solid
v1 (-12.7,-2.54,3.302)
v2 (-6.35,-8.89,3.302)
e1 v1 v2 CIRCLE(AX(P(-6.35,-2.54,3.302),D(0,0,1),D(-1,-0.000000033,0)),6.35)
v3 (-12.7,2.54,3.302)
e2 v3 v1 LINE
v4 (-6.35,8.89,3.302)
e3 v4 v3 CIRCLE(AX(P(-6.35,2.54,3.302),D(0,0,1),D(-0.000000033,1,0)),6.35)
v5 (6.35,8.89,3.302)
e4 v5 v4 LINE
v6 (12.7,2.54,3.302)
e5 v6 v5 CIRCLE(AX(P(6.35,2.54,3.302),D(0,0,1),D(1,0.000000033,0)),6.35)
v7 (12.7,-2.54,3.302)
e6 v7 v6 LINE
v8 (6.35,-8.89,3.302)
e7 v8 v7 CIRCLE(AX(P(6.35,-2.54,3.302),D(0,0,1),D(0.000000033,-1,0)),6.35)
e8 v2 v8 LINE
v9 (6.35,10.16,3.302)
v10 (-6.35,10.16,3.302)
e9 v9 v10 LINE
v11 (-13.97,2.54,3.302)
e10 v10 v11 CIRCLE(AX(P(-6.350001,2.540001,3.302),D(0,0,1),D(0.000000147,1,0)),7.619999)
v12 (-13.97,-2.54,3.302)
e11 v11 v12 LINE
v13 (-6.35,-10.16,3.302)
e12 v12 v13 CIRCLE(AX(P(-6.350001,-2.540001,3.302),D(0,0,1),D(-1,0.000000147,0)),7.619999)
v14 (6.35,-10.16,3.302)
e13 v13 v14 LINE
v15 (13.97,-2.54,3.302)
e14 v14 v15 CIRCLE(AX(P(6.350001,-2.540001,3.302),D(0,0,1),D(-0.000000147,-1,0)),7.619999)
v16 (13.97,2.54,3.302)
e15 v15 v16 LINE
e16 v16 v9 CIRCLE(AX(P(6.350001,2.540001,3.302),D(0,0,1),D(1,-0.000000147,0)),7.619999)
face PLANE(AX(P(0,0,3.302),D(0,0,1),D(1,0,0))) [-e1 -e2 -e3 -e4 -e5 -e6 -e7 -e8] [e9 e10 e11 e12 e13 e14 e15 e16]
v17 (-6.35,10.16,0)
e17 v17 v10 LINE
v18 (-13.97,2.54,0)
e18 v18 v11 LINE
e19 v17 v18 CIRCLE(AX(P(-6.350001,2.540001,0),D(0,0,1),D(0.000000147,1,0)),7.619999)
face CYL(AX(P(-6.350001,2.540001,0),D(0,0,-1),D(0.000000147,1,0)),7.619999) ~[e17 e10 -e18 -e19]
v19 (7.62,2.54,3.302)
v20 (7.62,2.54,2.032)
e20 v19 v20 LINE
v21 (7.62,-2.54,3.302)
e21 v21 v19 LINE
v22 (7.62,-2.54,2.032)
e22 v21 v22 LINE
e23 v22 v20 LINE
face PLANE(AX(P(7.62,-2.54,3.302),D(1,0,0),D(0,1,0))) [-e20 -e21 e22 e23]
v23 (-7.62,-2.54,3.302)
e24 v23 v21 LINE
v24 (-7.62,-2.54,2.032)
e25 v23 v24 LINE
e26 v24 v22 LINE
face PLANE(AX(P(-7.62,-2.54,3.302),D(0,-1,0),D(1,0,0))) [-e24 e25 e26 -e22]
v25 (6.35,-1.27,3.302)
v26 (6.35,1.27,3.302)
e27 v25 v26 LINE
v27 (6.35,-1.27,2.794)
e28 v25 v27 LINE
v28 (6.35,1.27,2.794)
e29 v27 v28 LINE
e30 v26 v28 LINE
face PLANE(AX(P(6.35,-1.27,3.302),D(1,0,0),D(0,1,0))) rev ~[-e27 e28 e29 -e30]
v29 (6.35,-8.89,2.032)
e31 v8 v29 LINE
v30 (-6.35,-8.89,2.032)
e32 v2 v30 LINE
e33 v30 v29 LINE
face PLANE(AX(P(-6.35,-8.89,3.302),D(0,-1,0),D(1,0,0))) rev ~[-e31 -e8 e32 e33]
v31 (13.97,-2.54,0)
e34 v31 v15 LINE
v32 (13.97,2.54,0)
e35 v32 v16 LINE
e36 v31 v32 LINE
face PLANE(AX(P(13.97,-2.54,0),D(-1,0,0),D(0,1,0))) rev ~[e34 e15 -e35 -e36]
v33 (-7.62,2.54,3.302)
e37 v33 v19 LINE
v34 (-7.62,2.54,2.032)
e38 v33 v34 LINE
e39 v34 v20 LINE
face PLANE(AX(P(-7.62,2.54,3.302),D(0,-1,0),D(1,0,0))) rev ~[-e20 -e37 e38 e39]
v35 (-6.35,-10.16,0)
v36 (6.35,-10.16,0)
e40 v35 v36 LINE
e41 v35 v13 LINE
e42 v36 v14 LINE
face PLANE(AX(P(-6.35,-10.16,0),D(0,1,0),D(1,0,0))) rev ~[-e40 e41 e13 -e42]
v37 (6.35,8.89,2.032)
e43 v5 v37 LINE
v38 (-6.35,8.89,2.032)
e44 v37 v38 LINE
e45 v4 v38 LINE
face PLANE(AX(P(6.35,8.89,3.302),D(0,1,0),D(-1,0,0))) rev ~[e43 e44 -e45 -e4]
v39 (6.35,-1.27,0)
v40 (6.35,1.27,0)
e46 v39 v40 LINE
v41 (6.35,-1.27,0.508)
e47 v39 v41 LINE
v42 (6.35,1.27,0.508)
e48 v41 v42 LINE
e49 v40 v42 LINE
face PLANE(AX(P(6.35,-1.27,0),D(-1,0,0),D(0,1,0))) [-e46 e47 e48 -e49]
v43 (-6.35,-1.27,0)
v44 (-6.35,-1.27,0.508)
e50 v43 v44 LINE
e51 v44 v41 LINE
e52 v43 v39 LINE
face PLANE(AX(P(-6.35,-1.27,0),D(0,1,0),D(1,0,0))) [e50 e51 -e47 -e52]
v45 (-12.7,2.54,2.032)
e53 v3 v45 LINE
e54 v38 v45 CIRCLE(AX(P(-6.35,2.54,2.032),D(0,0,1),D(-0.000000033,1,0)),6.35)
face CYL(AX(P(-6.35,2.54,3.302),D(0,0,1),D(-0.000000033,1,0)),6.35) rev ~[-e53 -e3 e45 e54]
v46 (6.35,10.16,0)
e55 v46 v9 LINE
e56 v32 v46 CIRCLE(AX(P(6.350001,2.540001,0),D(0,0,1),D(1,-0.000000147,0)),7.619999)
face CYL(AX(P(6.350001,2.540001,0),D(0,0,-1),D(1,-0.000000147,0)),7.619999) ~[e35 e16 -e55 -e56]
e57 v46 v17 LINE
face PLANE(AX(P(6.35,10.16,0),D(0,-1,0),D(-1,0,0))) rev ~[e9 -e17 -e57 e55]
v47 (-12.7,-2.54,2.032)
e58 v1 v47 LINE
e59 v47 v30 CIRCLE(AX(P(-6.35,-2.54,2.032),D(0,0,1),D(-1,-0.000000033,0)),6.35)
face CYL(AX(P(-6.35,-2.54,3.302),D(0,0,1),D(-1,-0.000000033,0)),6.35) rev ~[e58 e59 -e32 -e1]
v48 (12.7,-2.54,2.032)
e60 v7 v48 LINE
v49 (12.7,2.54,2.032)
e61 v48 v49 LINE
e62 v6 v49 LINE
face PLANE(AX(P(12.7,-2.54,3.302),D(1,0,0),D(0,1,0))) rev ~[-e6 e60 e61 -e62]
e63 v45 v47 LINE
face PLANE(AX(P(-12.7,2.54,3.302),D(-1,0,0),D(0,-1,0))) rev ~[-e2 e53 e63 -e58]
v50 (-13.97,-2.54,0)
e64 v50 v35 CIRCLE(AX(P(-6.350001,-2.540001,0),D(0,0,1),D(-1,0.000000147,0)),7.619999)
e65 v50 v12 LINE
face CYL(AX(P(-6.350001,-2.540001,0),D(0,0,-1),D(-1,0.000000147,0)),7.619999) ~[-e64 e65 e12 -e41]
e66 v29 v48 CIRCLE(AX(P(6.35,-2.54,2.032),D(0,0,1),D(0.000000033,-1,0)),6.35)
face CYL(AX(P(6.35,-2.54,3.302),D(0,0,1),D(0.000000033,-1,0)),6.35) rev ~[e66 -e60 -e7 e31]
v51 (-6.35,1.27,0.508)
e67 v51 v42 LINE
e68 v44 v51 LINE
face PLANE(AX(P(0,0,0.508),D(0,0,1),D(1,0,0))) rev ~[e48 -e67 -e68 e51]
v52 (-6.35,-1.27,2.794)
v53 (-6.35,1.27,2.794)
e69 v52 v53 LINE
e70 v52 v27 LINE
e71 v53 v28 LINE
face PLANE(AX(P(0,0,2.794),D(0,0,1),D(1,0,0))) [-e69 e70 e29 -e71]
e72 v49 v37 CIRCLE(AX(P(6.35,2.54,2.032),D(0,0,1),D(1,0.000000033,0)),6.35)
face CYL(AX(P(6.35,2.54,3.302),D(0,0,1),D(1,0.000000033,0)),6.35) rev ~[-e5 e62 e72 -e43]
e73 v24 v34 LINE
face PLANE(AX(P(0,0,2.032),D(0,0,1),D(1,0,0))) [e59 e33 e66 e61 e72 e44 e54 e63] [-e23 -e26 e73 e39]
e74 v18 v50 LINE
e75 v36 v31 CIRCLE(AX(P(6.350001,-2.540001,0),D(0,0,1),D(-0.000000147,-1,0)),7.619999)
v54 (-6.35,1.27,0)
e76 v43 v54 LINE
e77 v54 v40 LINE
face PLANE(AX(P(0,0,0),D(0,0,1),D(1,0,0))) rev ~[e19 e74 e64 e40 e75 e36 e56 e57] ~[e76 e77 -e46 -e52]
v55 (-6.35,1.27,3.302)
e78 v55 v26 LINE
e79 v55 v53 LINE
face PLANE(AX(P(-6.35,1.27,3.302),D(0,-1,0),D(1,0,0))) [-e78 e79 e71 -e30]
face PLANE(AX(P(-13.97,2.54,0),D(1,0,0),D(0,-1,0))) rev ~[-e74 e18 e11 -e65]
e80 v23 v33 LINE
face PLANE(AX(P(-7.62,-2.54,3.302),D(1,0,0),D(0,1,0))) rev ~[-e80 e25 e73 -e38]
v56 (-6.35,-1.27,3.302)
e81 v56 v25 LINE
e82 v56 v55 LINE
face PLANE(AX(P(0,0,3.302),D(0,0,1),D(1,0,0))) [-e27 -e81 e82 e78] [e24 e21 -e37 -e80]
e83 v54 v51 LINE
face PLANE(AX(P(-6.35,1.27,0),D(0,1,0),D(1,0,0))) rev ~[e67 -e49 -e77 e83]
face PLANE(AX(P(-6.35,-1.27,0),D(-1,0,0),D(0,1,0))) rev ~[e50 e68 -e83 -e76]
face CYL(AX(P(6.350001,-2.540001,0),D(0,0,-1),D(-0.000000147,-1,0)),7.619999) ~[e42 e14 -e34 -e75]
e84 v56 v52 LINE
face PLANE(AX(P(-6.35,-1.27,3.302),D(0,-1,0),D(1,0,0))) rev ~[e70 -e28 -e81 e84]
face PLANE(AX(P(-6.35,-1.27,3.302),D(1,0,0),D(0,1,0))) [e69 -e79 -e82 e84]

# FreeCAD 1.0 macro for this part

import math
import FreeCAD as App
import Part
import Sketcher

V = App.Vector
Q = App.Units.Quantity

doc = App.newDocument("Part")
body = doc.addObject("PartDesign::Body", "Body")

sketch1 = doc.addObject("Sketcher::SketchObject", "Sketch")
body.addObject(sketch1)
sketch1.AttachmentSupport = (doc.XY_Plane, [""])
sketch1.MapMode = "FlatFace"
sketch1.addGeometry(Part.LineSegment(V(-6, -10, 0), V(6, -10, 0)), False)
sketch1.addGeometry(Part.ArcOfCircle(Part.Circle(V(6, -3, 0), V(0, 0, 1), 8), math.radians(-90), math.radians(0)), False)
sketch1.addGeometry(Part.LineSegment(V(14, -3, 0), V(14, 3, 0)), False)
sketch1.addGeometry(Part.ArcOfCircle(Part.Circle(V(6, 3, 0), V(0, 0, 1), 8), math.radians(0), math.radians(90)), False)
sketch1.addGeometry(Part.LineSegment(V(6, 10, 0), V(-6, 10, 0)), False)
sketch1.addGeometry(Part.ArcOfCircle(Part.Circle(V(-6, 3, 0), V(0, 0, 1), 8), math.radians(90), math.radians(180)), False)
sketch1.addGeometry(Part.LineSegment(V(-14, 3, 0), V(-14, -3, 0)), False)
sketch1.addGeometry(Part.ArcOfCircle(Part.Circle(V(-6, -3, 0), V(0, 0, 1), 8), math.radians(180), math.radians(270)), False)
sketch1.addConstraint(Sketcher.Constraint("Tangent", 0, 2, 1, 1))
sketch1.addConstraint(Sketcher.Constraint("Tangent", 1, 2, 2, 1))
sketch1.addConstraint(Sketcher.Constraint("Tangent", 2, 2, 3, 1))
sketch1.addConstraint(Sketcher.Constraint("Tangent", 3, 2, 4, 1))
sketch1.addConstraint(Sketcher.Constraint("Tangent", 4, 2, 5, 1))
sketch1.addConstraint(Sketcher.Constraint("Tangent", 5, 2, 6, 1))
sketch1.addConstraint(Sketcher.Constraint("Tangent", 6, 2, 7, 1))
sketch1.addConstraint(Sketcher.Constraint("Tangent", 7, 2, 0, 1))
sketch1.addConstraint(Sketcher.Constraint("Horizontal", 0))
sketch1.addConstraint(Sketcher.Constraint("Vertical", 2))
sketch1.addConstraint(Sketcher.Constraint("Horizontal", 4))
sketch1.addConstraint(Sketcher.Constraint("Vertical", 6))
sketch1.addConstraint(Sketcher.Constraint("Equal", 1, 3))
sketch1.addConstraint(Sketcher.Constraint("Equal", 3, 5))
sketch1.addConstraint(Sketcher.Constraint("Equal", 5, 7))
sketch1.addConstraint(Sketcher.Constraint("Symmetric", 1, 3, 5, 3, -1, 1))
sketch1.addConstraint(Sketcher.Constraint("Radius", 1, Q("0.3 in")))
sketch1.addConstraint(Sketcher.Constraint("DistanceX", 0, 1, 0, 2, Q("0.5 in")))
sketch1.addConstraint(Sketcher.Constraint("DistanceY", 2, 1, 2, 2, Q("0.2 in")))
pad1 = doc.addObject("PartDesign::Pad", "Pad")
body.addObject(pad1)
pad1.Profile = sketch1
pad1.Length = Q("0.13 in")

sketch2 = doc.addObject("Sketcher::SketchObject", "Sketch001")
body.addObject(sketch2)
sketch2.AttachmentSupport = (doc.XY_Plane, [""])
sketch2.MapMode = "FlatFace"
sketch2.AttachmentOffset = App.Placement(V(0, 0, 0.13 * 25.4), App.Rotation())
sketch2.addGeometry(Part.LineSegment(V(-6, -9, 0), V(6, -9, 0)), False)
sketch2.addGeometry(Part.ArcOfCircle(Part.Circle(V(6, -3, 0), V(0, 0, 1), 6), math.radians(-90), math.radians(0)), False)
sketch2.addGeometry(Part.LineSegment(V(13, -3, 0), V(13, 3, 0)), False)
sketch2.addGeometry(Part.ArcOfCircle(Part.Circle(V(6, 3, 0), V(0, 0, 1), 6), math.radians(0), math.radians(90)), False)
sketch2.addGeometry(Part.LineSegment(V(6, 9, 0), V(-6, 9, 0)), False)
sketch2.addGeometry(Part.ArcOfCircle(Part.Circle(V(-6, 3, 0), V(0, 0, 1), 6), math.radians(90), math.radians(180)), False)
sketch2.addGeometry(Part.LineSegment(V(-13, 3, 0), V(-13, -3, 0)), False)
sketch2.addGeometry(Part.ArcOfCircle(Part.Circle(V(-6, -3, 0), V(0, 0, 1), 6), math.radians(-180), math.radians(-90)), False)
sketch2.addGeometry(Part.LineSegment(V(8, -3, 0), V(-8, -3, 0)), False)
sketch2.addGeometry(Part.LineSegment(V(-8, -3, 0), V(-8, 3, 0)), False)
sketch2.addGeometry(Part.LineSegment(V(-8, 3, 0), V(8, 3, 0)), False)
sketch2.addGeometry(Part.LineSegment(V(8, 3, 0), V(8, -3, 0)), False)
sketch2.addConstraint(Sketcher.Constraint("Tangent", 0, 2, 1, 1))
sketch2.addConstraint(Sketcher.Constraint("Tangent", 1, 2, 2, 1))
sketch2.addConstraint(Sketcher.Constraint("Tangent", 2, 2, 3, 1))
sketch2.addConstraint(Sketcher.Constraint("Tangent", 3, 2, 4, 1))
sketch2.addConstraint(Sketcher.Constraint("Tangent", 4, 2, 5, 1))
sketch2.addConstraint(Sketcher.Constraint("Tangent", 5, 2, 6, 1))
sketch2.addConstraint(Sketcher.Constraint("Tangent", 6, 2, 7, 1))
sketch2.addConstraint(Sketcher.Constraint("Tangent", 7, 2, 0, 1))
sketch2.addConstraint(Sketcher.Constraint("Coincident", 8, 2, 9, 1))
sketch2.addConstraint(Sketcher.Constraint("Coincident", 9, 2, 10, 1))
sketch2.addConstraint(Sketcher.Constraint("Coincident", 10, 2, 11, 1))
sketch2.addConstraint(Sketcher.Constraint("Coincident", 11, 2, 8, 1))
sketch2.addConstraint(Sketcher.Constraint("Horizontal", 0))
sketch2.addConstraint(Sketcher.Constraint("Vertical", 2))
sketch2.addConstraint(Sketcher.Constraint("Horizontal", 4))
sketch2.addConstraint(Sketcher.Constraint("Vertical", 6))
sketch2.addConstraint(Sketcher.Constraint("Horizontal", 8))
sketch2.addConstraint(Sketcher.Constraint("Vertical", 9))
sketch2.addConstraint(Sketcher.Constraint("Horizontal", 10))
sketch2.addConstraint(Sketcher.Constraint("Vertical", 11))
sketch2.addConstraint(Sketcher.Constraint("Equal", 1, 3))
sketch2.addConstraint(Sketcher.Constraint("Equal", 3, 5))
sketch2.addConstraint(Sketcher.Constraint("Equal", 5, 7))
sketch2.addConstraint(Sketcher.Constraint("Symmetric", 1, 3, 5, 3, -1, 1))
sketch2.addConstraint(Sketcher.Constraint("Symmetric", 8, 2, 10, 2, -1, 1))
sketch2.addConstraint(Sketcher.Constraint("Horizontal", 6, 2, 8, 2))
sketch2.addConstraint(Sketcher.Constraint("Radius", 1, Q("0.25 in")))
sketch2.addConstraint(Sketcher.Constraint("DistanceX", 0, 1, 0, 2, Q("0.5 in")))
sketch2.addConstraint(Sketcher.Constraint("DistanceX", 8, 2, 8, 1, Q("0.6 in")))
sketch2.addConstraint(Sketcher.Constraint("DistanceY", 2, 1, 2, 2, Q("0.2 in")))
pocket1 = doc.addObject("PartDesign::Pocket", "Pocket")
body.addObject(pocket1)
pocket1.Profile = sketch2
pocket1.Length = Q("0.05 in")

sketch3 = doc.addObject("Sketcher::SketchObject", "Sketch002")
body.addObject(sketch3)
sketch3.AttachmentSupport = (doc.XY_Plane, [""])
sketch3.MapMode = "FlatFace"
sketch3.AttachmentOffset = App.Placement(V(0, 0, 0.13 * 25.4), App.Rotation())
sketch3.addGeometry(Part.LineSegment(V(-6.3, 1.3, 0), V(-6.3, -1.3, 0)), False)
sketch3.addGeometry(Part.LineSegment(V(-6.3, -1.3, 0), V(6.3, -1.3, 0)), False)
sketch3.addGeometry(Part.LineSegment(V(6.3, -1.3, 0), V(6.3, 1.3, 0)), False)
sketch3.addGeometry(Part.LineSegment(V(6.3, 1.3, 0), V(-6.3, 1.3, 0)), False)
sketch3.addConstraint(Sketcher.Constraint("Coincident", 0, 2, 1, 1))
sketch3.addConstraint(Sketcher.Constraint("Coincident", 1, 2, 2, 1))
sketch3.addConstraint(Sketcher.Constraint("Coincident", 2, 2, 3, 1))
sketch3.addConstraint(Sketcher.Constraint("Coincident", 3, 2, 0, 1))
sketch3.addConstraint(Sketcher.Constraint("Vertical", 0))
sketch3.addConstraint(Sketcher.Constraint("Horizontal", 1))
sketch3.addConstraint(Sketcher.Constraint("Vertical", 2))
sketch3.addConstraint(Sketcher.Constraint("Horizontal", 3))
sketch3.addConstraint(Sketcher.Constraint("Symmetric", 0, 2, 2, 2, -1, 1))
sketch3.addConstraint(Sketcher.Constraint("DistanceX", 1, 1, 1, 2, Q("0.5 in")))
sketch3.addConstraint(Sketcher.Constraint("DistanceY", 0, 2, 0, 1, Q("0.1 in")))
pocket2 = doc.addObject("PartDesign::Pocket", "Pocket001")
body.addObject(pocket2)
pocket2.Profile = sketch3
pocket2.Length = Q("0.02 in")

sketch4 = doc.addObject("Sketcher::SketchObject", "Sketch003")
body.addObject(sketch4)
sketch4.AttachmentSupport = (doc.XY_Plane, [""])
sketch4.MapMode = "FlatFace"
sketch4.addGeometry(Part.LineSegment(V(-6.3, 1.3, 0), V(-6.3, -1.3, 0)), False)
sketch4.addGeometry(Part.LineSegment(V(-6.3, -1.3, 0), V(6.3, -1.3, 0)), False)
sketch4.addGeometry(Part.LineSegment(V(6.3, -1.3, 0), V(6.3, 1.3, 0)), False)
sketch4.addGeometry(Part.LineSegment(V(6.3, 1.3, 0), V(-6.3, 1.3, 0)), False)
sketch4.addConstraint(Sketcher.Constraint("Coincident", 0, 2, 1, 1))
sketch4.addConstraint(Sketcher.Constraint("Coincident", 1, 2, 2, 1))
sketch4.addConstraint(Sketcher.Constraint("Coincident", 2, 2, 3, 1))
sketch4.addConstraint(Sketcher.Constraint("Coincident", 3, 2, 0, 1))
sketch4.addConstraint(Sketcher.Constraint("Vertical", 0))
sketch4.addConstraint(Sketcher.Constraint("Horizontal", 1))
sketch4.addConstraint(Sketcher.Constraint("Vertical", 2))
sketch4.addConstraint(Sketcher.Constraint("Horizontal", 3))
sketch4.addConstraint(Sketcher.Constraint("Symmetric", 0, 2, 2, 2, -1, 1))
sketch4.addConstraint(Sketcher.Constraint("DistanceX", 1, 1, 1, 2, Q("0.5 in")))
sketch4.addConstraint(Sketcher.Constraint("DistanceY", 0, 2, 0, 1, Q("0.1 in")))
pocket3 = doc.addObject("PartDesign::Pocket", "Pocket002")
body.addObject(pocket3)
pocket3.Profile = sketch4
pocket3.Length = Q("0.02 in")
pocket3.Reversed = True

doc.recompute()
